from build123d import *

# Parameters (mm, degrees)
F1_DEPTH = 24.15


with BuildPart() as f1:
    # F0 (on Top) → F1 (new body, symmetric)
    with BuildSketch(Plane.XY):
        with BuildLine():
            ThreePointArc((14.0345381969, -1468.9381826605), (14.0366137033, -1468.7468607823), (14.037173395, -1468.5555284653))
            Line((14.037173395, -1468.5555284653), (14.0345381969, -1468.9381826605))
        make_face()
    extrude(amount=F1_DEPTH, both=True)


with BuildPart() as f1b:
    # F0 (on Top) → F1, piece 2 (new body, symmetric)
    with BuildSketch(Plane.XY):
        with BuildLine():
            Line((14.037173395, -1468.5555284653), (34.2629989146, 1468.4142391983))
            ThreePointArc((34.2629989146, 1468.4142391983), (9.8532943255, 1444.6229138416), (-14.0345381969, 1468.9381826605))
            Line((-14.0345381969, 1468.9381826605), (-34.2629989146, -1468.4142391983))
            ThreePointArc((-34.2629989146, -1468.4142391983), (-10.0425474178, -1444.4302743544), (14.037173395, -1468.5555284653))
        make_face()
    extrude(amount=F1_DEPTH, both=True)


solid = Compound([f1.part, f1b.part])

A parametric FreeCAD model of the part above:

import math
import FreeCAD as App
import Part
import Sketcher

doc = App.newDocument("Part")
body = doc.addObject("PartDesign::Body", "Body")

# Sketch on XY plane
sketch1 = body.newObject("Sketcher::SketchObject", "Sketch")
sketch1.AttachmentSupport = (doc.getObject("XY_Plane"), [""])
sketch1.MapMode = "FlatFace"
sketch1.addGeometry([
    Part.ArcOfCircle(Part.Circle(App.Vector(-10.11, -1468.58, 0), App.Vector(0, 0, 1), 24.15), math.radians(-0.85), math.radians(0.06)),
    Part.LineSegment(App.Vector(14.04, -1468.56, 0), App.Vector(14.03, -1468.94, 0)),
], False)
sketch1.addConstraint([
    Sketcher.Constraint("Coincident", 0, 1, 1, 2),
    Sketcher.Constraint("Coincident", 1, 1, 0, 2),
    Sketcher.Constraint("Radius", 0, 24.15038),
    Sketcher.Constraint("DistanceY", 0, 3, -1, 1, 1468.58055),
    Sketcher.Constraint("DistanceX", -1, 1, 0, 1, 14.034538),
    Sketcher.Constraint("DistanceY", 1, 1, -1, 1, 1468.555528),
    Sketcher.Constraint("DistanceX", 0, 3, 0, 1, 24.147732),
])
pad1 = body.newObject("PartDesign::Pad", "Pad")
pad1.Profile = sketch1
pad1.Length = 48.3
pad1.Midplane = True
body2 = doc.addObject("PartDesign::Body", "Body001")

# Sketch on XY plane
sketch2 = body2.newObject("Sketcher::SketchObject", "Sketch001")
sketch2.AttachmentSupport = (doc.getObject("XY_Plane001"), [""])
sketch2.MapMode = "FlatFace"
sketch2.addGeometry([
    Part.LineSegment(App.Vector(14, -1469, 0), App.Vector(34, 1468, 0)),
    Part.ArcOfCircle(Part.Circle(App.Vector(10, 1469, 0), App.Vector(0, 0, 1), 24), math.radians(180), math.radians(359)),
    Part.LineSegment(App.Vector(-14, 1469, 0), App.Vector(-34, -1468, 0)),
    Part.ArcOfCircle(Part.Circle(App.Vector(-10, -1469, 0), App.Vector(0, 0, 1), 24), math.radians(0), math.radians(180)),
], False)
sketch2.addConstraint([
    Sketcher.Constraint("Coincident", 0, 2, 1, 2),
    Sketcher.Constraint("Tangent", 1, 1, 2, 1),
    Sketcher.Constraint("Tangent", 2, 2, 3, 2),
    Sketcher.Constraint("Coincident", 3, 1, 0, 1),
    Sketcher.Constraint("Equal", 1, 3),
    Sketcher.Constraint("Symmetric", 0, 2, 2, 2, -1, 1),
    Sketcher.Constraint("Parallel", 0, 2),
    Sketcher.Constraint("Radius", 1, 24.150379),
    Sketcher.Constraint("DistanceX", -1, 1, 0, 2, 34.262999),
    Sketcher.Constraint("DistanceY", 3, 1, 1, 3, 2937.3274),
    Sketcher.Constraint("Distance", 0, 2937.039411),
])
pad2 = body2.newObject("PartDesign::Pad", "Pad001")
pad2.Profile = sketch2
pad2.Length = 48.3
pad2.Midplane = True

doc.recompute()
